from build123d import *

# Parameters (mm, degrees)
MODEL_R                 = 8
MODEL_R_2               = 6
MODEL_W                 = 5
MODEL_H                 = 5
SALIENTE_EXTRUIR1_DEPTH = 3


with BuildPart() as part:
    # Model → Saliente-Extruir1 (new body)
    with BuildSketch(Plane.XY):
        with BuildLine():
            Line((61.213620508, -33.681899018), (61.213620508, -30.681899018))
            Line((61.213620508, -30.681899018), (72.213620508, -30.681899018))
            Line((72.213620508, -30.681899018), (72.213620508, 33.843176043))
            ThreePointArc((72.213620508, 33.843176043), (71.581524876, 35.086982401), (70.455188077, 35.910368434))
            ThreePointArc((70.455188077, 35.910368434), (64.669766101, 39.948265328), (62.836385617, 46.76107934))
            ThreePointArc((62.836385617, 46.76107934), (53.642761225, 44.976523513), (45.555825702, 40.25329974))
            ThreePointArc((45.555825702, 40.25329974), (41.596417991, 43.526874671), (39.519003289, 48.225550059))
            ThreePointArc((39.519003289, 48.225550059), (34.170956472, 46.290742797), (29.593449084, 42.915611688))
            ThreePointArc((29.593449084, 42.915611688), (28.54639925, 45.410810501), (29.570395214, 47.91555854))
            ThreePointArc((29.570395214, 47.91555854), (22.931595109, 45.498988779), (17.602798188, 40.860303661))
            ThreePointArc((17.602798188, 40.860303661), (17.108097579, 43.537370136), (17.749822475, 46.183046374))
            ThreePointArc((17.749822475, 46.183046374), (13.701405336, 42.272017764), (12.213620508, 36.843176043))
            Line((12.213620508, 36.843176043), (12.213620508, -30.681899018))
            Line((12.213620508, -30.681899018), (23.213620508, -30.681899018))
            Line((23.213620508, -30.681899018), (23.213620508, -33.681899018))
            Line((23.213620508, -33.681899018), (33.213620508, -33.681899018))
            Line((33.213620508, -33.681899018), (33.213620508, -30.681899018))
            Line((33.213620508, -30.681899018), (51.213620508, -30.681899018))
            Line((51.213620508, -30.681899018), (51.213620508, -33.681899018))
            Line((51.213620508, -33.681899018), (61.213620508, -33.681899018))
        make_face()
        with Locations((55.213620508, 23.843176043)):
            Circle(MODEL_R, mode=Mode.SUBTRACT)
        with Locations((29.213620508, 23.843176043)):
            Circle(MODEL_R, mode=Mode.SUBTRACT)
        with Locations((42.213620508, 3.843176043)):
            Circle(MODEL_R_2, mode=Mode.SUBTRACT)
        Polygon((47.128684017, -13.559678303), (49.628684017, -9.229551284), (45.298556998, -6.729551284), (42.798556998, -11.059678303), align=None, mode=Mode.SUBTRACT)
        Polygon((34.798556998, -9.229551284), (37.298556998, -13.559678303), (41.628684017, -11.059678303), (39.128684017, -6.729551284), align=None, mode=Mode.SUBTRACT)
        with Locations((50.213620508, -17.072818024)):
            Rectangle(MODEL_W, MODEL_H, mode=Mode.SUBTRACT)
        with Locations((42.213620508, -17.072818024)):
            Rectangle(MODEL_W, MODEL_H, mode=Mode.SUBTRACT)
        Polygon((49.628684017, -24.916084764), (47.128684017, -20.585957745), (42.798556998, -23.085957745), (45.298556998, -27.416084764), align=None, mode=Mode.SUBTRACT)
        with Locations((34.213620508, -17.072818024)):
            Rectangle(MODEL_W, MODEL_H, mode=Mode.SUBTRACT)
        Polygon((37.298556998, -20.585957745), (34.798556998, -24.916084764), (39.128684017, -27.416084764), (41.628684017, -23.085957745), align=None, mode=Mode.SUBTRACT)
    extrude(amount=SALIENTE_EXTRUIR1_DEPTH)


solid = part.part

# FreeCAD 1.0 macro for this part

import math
import FreeCAD as App
import Part
import Sketcher

V = App.Vector
Q = App.Units.Quantity


def add_polygon(sketch, points):
    """Adds a closed chain of lines whose ends are joined by coincident constraints."""
    first, n = sketch.GeometryCount, len(points)
    for a, b in zip(points, points[1:] + points[:1]):
        sketch.addGeometry(Part.LineSegment(App.Vector(*a, 0), App.Vector(*b, 0)), False)
    for i in range(n):
        sketch.addConstraint(Sketcher.Constraint("Coincident", first + i, 2, first + (i + 1) % n, 1))

doc = App.newDocument("Part")
body = doc.addObject("PartDesign::Body", "Body")

sketch1 = body.newObject("Sketcher::SketchObject", "Sketch")
sketch1.AttachmentSupport = (doc.getObject("XY_Plane"), [""])
sketch1.MapMode = "FlatFace"
sketch1.addGeometry(Part.LineSegment(V(61.2, -33.7, 0), V(61.2, -30.7, 0)), False)
sketch1.addGeometry(Part.LineSegment(V(61.2, -30.7, 0), V(72.2, -30.7, 0)), False)
sketch1.addGeometry(Part.LineSegment(V(72.2, -30.7, 0), V(72.2, 33.8, 0)), False)
sketch1.addGeometry(Part.ArcOfCircle(Part.Circle(V(69.3, 33.1, 0), V(0, 0, 1), 3), math.radians(13), math.radians(67)), False)
sketch1.addGeometry(Part.ArcOfCircle(Part.Circle(V(73.1, 45.9, 0), V(0, 0, 1), 10.3), math.radians(175), math.radians(255)), False)
sketch1.addGeometry(Part.ArcOfCircle(Part.Circle(V(63.5, 18.8, 0), V(0, 0, 1), 27.9), math.radians(91), math.radians(130)), False)
sketch1.addGeometry(Part.ArcOfCircle(Part.Circle(V(50.5, 50.3, 0), V(0, 0, 1), 11.2), math.radians(-169), math.radians(-116)), False)
sketch1.addGeometry(Part.ArcOfCircle(Part.Circle(V(43.5, 28.8, 0), V(0, 0, 1), 19.8), math.radians(102), math.radians(135)), False)
sketch1.addGeometry(Part.ArcOfCircle(Part.Circle(V(32.1, 45.4, 0), V(0, 0, 1), 3.5), math.radians(135), math.radians(225)), False)
sketch1.addGeometry(Part.ArcOfCircle(Part.Circle(V(32.8, 28.8, 0), V(0, 0, 1), 19.3), math.radians(99), math.radians(142)), False)
sketch1.addGeometry(Part.ArcOfCircle(Part.Circle(V(23.6, 43.4, 0), V(0, 0, 1), 6.5), math.radians(154), math.radians(203)), False)
sketch1.addGeometry(Part.ArcOfCircle(Part.Circle(V(22.9, 36.8, 0), V(0, 0, 1), 10.6), math.radians(119), math.radians(180)), False)
sketch1.addGeometry(Part.LineSegment(V(12.2, 36.8, 0), V(12.2, -30.7, 0)), False)
sketch1.addGeometry(Part.LineSegment(V(12.2, -30.7, 0), V(23.2, -30.7, 0)), False)
sketch1.addGeometry(Part.LineSegment(V(23.2, -30.7, 0), V(23.2, -33.7, 0)), False)
sketch1.addGeometry(Part.LineSegment(V(23.2, -33.7, 0), V(33.2, -33.7, 0)), False)
sketch1.addGeometry(Part.LineSegment(V(33.2, -33.7, 0), V(33.2, -30.7, 0)), False)
sketch1.addGeometry(Part.LineSegment(V(33.2, -30.7, 0), V(51.2, -30.7, 0)), False)
sketch1.addGeometry(Part.LineSegment(V(51.2, -30.7, 0), V(51.2, -33.7, 0)), False)
sketch1.addGeometry(Part.LineSegment(V(51.2, -33.7, 0), V(61.2, -33.7, 0)), False)
add_polygon(sketch1, [(34.8, -24.9), (37.3, -20.6), (41.6, -23.1), (39.1, -27.4)])
add_polygon(sketch1, [(36.7, -19.6), (31.7, -19.6), (31.7, -14.6), (36.7, -14.6)])
add_polygon(sketch1, [(37.3, -13.6), (34.8, -9.2), (39.1, -6.7), (41.6, -11.1)])
add_polygon(sketch1, [(47.1, -20.6), (49.6, -24.9), (45.3, -27.4), (42.8, -23.1)])
add_polygon(sketch1, [(44.7, -19.6), (39.7, -19.6), (39.7, -14.6), (44.7, -14.6)])
add_polygon(sketch1, [(52.7, -19.6), (47.7, -19.6), (47.7, -14.6), (52.7, -14.6)])
add_polygon(sketch1, [(49.6, -9.2), (47.1, -13.6), (42.8, -11.1), (45.3, -6.7)])
sketch1.addGeometry(Part.Circle(V(29.2, 23.8, 0), V(0, 0, 1), 8), False)
sketch1.addGeometry(Part.Circle(V(42.2, 3.8, 0), V(0, 0, 1), 6), False)
sketch1.addGeometry(Part.Circle(V(55.2, 23.8, 0), V(0, 0, 1), 8), False)
sketch1.addConstraint([
    Sketcher.Constraint("Coincident", 0, 2, 1, 1),
    Sketcher.Constraint("Coincident", 1, 2, 2, 1),
    Sketcher.Constraint("Coincident", 2, 2, 3, 1),
    Sketcher.Constraint("Coincident", 3, 2, 4, 2),
    Sketcher.Constraint("Coincident", 4, 1, 5, 1),
    Sketcher.Constraint("Coincident", 5, 2, 6, 2),
    Sketcher.Constraint("Coincident", 6, 1, 7, 1),
    Sketcher.Constraint("Coincident", 7, 2, 8, 2),
    Sketcher.Constraint("Coincident", 8, 1, 9, 1),
    Sketcher.Constraint("Coincident", 9, 2, 10, 2),
    Sketcher.Constraint("Coincident", 10, 1, 11, 1),
    Sketcher.Constraint("Coincident", 11, 2, 12, 1),
    Sketcher.Constraint("Coincident", 12, 2, 13, 1),
    Sketcher.Constraint("Coincident", 13, 2, 14, 1),
    Sketcher.Constraint("Coincident", 14, 2, 15, 1),
    Sketcher.Constraint("Coincident", 15, 2, 16, 1),
    Sketcher.Constraint("Coincident", 16, 2, 17, 1),
    Sketcher.Constraint("Coincident", 17, 2, 18, 1),
    Sketcher.Constraint("Coincident", 18, 2, 19, 1),
    Sketcher.Constraint("Coincident", 19, 2, 0, 1),
    Sketcher.Constraint("Vertical", 0),
    Sketcher.Constraint("Horizontal", 1),
    Sketcher.Constraint("Vertical", 2),
    Sketcher.Constraint("Vertical", 12),
    Sketcher.Constraint("Horizontal", 13),
    Sketcher.Constraint("Vertical", 14),
    Sketcher.Constraint("Horizontal", 15),
    Sketcher.Constraint("Vertical", 16),
    Sketcher.Constraint("Horizontal", 17),
    Sketcher.Constraint("Vertical", 18),
    Sketcher.Constraint("Horizontal", 19),
    Sketcher.Constraint("Horizontal", 24),
    Sketcher.Constraint("Vertical", 25),
    Sketcher.Constraint("Horizontal", 26),
    Sketcher.Constraint("Vertical", 27),
    Sketcher.Constraint("Horizontal", 36),
    Sketcher.Constraint("Vertical", 37),
    Sketcher.Constraint("Horizontal", 38),
    Sketcher.Constraint("Vertical", 39),
    Sketcher.Constraint("Horizontal", 40),
    Sketcher.Constraint("Vertical", 41),
    Sketcher.Constraint("Horizontal", 42),
    Sketcher.Constraint("Vertical", 43),
    Sketcher.Constraint("Equal", 48, 50),
    Sketcher.Constraint("Perpendicular", 20, 21),
    Sketcher.Constraint("Perpendicular", 21, 22),
    Sketcher.Constraint("Perpendicular", 22, 23),
    Sketcher.Constraint("Perpendicular", 28, 29),
    Sketcher.Constraint("Perpendicular", 29, 30),
    Sketcher.Constraint("Perpendicular", 30, 31),
    Sketcher.Constraint("Perpendicular", 31, 32),
    Sketcher.Constraint("Perpendicular", 32, 33),
    Sketcher.Constraint("Perpendicular", 33, 34),
    Sketcher.Constraint("Perpendicular", 34, 35),
    Sketcher.Constraint("Perpendicular", 23, 44),
    Sketcher.Constraint("Perpendicular", 44, 45),
    Sketcher.Constraint("Perpendicular", 45, 46),
    Sketcher.Constraint("Perpendicular", 46, 47),
    Sketcher.Constraint("Horizontal", 48, 3, 50, 3),
    Sketcher.Constraint("Horizontal", 1, 2, 12, 2),
    Sketcher.Constraint("Horizontal", 13, 2, 16, 2),
    Sketcher.Constraint("Horizontal", 15, 2, 18, 2),
    Sketcher.Constraint("Horizontal", 23, 2, 32, 2),
    Sketcher.Constraint("Horizontal", 22, 2, 33, 2),
    Sketcher.Constraint("Horizontal", 21, 2, 34, 2),
    Sketcher.Constraint("Horizontal", 27, 2, 36, 2),
    Sketcher.Constraint("Horizontal", 26, 2, 37, 2),
    Sketcher.Constraint("Horizontal", 39, 2, 40, 2),
    Sketcher.Constraint("Horizontal", 38, 2, 41, 2),
    Sketcher.Constraint("Horizontal", 31, 2, 44, 2),
    Sketcher.Constraint("Horizontal", 30, 2, 45, 2),
    Sketcher.Constraint("Horizontal", 29, 2, 46, 2),
    Sketcher.Constraint("Vertical", 23, 2, 28, 2),
    Sketcher.Constraint("Vertical", 22, 2, 29, 2),
    Sketcher.Constraint("Vertical", 21, 2, 30, 2),
    Sketcher.Constraint("Vertical", 35, 2, 44, 2),
    Sketcher.Constraint("Vertical", 34, 2, 45, 2),
    Sketcher.Constraint("Equal", 1, 13),
    Sketcher.Constraint("Equal", 15, 19),
    Sketcher.Constraint("Equal", 26, 36),
    Sketcher.Constraint("Equal", 38, 40),
    Sketcher.Constraint("Equal", 42, 25),
    Sketcher.Constraint("Equal", 20, 21),
    Sketcher.Constraint("Diameter", 48, 16.0),
    Sketcher.Constraint("Diameter", 49, 12.0),
    Sketcher.Constraint("Radius", 3, 3.0),
    Sketcher.Constraint("DistanceX", 1, 1, 1, 2, 11.0),
    Sketcher.Constraint("DistanceX", 15, 1, 15, 2, 10.0),
    Sketcher.Constraint("DistanceX", 17, 1, 17, 2, 18.0),
    Sketcher.Constraint("DistanceX", 24, 2, 24, 1, 5.0),
    Sketcher.Constraint("DistanceY", 0, 1, 0, 2, 3.0),
    Sketcher.Constraint("Angle", 20, Q("60 deg")),
    Sketcher.Constraint("Distance", 20, 5.0),
    Sketcher.Constraint("DistanceX", 48, 3, 49, 3, 13.0),
    Sketcher.Constraint("DistanceY", 49, 3, 48, 3, 20.0),
    Sketcher.Constraint("DistanceX", 49, 3, 50, 3, 13.0),
    Sketcher.Constraint("DistanceX", 49, 3, 0, 2, 19.0),
    Sketcher.Constraint("DistanceY", 50, 3, 2, 2, 10.0),
    Sketcher.Constraint("DistanceX", 21, 2, 32, 2, 8.0),
    Sketcher.Constraint("DistanceX", 27, 2, 36, 2, 3.0),
    Sketcher.Constraint("DistanceX", 39, 2, 40, 2, 3.0),
    Sketcher.Constraint("DistanceX", 24, 2, 16, 2, 1.5),
    Sketcher.Constraint("Radius", 6, 11.18034),
    Sketcher.Constraint("Radius", 7, 19.801309),
    Sketcher.Constraint("Radius", 4, 10.307764),
    Sketcher.Constraint("Radius", 5, 27.930966),
    Sketcher.Constraint("Radius", 8, 3.535534),
    Sketcher.Constraint("Radius", 9, 19.349935),
    Sketcher.Constraint("Radius", 10, 6.519202),
    Sketcher.Constraint("Radius", 11, 10.644704),
    Sketcher.Constraint("DistanceX", 9, 3, 3, 3, 36.537998),
    Sketcher.Constraint("DistanceY", 0, 2, -1, 1, 30.681899),
    Sketcher.Constraint("DistanceY", -1, 1, 5, 2, 40.2533),
    Sketcher.Constraint("DistanceX", -1, 1, 9, 2, 17.602798),
    Sketcher.Constraint("DistanceX", 8, 3, 4, 3, 41.023799),
    Sketcher.Constraint("DistanceX", 9, 3, 5, 3, 30.728102),
    Sketcher.Constraint("DistanceY", 7, 2, 8, 3, 2.5115),
    Sketcher.Constraint("DistanceX", 8, 1, 8, 3, 2.5115),
    Sketcher.Constraint("DistanceY", 11, 3, 8, 1, 11.071299),
    Sketcher.Constraint("DistanceX", 11, 2, 10, 1, 5.536202),
    Sketcher.Constraint("DistanceY", 2, 1, 2, 2, 64.525075),
    Sketcher.Constraint("DistanceY", 12, 2, 12, 1, 67.525075),
    Sketcher.Constraint("DistanceY", -1, 1, 3, 3, 33.143191),
    Sketcher.Constraint("DistanceX", -1, 1, 5, 3, 63.48653),
    Sketcher.Constraint("DistanceY", -1, 1, 5, 3, 18.837681),
    Sketcher.Constraint("DistanceX", -1, 1, 7, 3, 43.511548),
    Sketcher.Constraint("DistanceY", -1, 1, 11, 3, 36.84426),
    Sketcher.Constraint("DistanceX", -1, 1, 3, 2, 70.455188),
    Sketcher.Constraint("DistanceY", -1, 1, 6, 1, 48.22555),
    Sketcher.Constraint("DistanceX", -1, 1, 7, 2, 29.593449),
    Sketcher.Constraint("DistanceY", 24, 2, -1, 1, 19.572818),
    Sketcher.Constraint("DistanceY", 28, 2, -1, 1, 9.229551),
    Sketcher.Constraint("DistanceY", 16, 2, 20, 2, 10.095941),
    Sketcher.Constraint("DistanceX", -1, 1, 20, 2, 37.298557),
])
pad1 = body.newObject("PartDesign::Pad", "Pad")
pad1.Profile = sketch1
pad1.Length = 3

doc.recompute()
